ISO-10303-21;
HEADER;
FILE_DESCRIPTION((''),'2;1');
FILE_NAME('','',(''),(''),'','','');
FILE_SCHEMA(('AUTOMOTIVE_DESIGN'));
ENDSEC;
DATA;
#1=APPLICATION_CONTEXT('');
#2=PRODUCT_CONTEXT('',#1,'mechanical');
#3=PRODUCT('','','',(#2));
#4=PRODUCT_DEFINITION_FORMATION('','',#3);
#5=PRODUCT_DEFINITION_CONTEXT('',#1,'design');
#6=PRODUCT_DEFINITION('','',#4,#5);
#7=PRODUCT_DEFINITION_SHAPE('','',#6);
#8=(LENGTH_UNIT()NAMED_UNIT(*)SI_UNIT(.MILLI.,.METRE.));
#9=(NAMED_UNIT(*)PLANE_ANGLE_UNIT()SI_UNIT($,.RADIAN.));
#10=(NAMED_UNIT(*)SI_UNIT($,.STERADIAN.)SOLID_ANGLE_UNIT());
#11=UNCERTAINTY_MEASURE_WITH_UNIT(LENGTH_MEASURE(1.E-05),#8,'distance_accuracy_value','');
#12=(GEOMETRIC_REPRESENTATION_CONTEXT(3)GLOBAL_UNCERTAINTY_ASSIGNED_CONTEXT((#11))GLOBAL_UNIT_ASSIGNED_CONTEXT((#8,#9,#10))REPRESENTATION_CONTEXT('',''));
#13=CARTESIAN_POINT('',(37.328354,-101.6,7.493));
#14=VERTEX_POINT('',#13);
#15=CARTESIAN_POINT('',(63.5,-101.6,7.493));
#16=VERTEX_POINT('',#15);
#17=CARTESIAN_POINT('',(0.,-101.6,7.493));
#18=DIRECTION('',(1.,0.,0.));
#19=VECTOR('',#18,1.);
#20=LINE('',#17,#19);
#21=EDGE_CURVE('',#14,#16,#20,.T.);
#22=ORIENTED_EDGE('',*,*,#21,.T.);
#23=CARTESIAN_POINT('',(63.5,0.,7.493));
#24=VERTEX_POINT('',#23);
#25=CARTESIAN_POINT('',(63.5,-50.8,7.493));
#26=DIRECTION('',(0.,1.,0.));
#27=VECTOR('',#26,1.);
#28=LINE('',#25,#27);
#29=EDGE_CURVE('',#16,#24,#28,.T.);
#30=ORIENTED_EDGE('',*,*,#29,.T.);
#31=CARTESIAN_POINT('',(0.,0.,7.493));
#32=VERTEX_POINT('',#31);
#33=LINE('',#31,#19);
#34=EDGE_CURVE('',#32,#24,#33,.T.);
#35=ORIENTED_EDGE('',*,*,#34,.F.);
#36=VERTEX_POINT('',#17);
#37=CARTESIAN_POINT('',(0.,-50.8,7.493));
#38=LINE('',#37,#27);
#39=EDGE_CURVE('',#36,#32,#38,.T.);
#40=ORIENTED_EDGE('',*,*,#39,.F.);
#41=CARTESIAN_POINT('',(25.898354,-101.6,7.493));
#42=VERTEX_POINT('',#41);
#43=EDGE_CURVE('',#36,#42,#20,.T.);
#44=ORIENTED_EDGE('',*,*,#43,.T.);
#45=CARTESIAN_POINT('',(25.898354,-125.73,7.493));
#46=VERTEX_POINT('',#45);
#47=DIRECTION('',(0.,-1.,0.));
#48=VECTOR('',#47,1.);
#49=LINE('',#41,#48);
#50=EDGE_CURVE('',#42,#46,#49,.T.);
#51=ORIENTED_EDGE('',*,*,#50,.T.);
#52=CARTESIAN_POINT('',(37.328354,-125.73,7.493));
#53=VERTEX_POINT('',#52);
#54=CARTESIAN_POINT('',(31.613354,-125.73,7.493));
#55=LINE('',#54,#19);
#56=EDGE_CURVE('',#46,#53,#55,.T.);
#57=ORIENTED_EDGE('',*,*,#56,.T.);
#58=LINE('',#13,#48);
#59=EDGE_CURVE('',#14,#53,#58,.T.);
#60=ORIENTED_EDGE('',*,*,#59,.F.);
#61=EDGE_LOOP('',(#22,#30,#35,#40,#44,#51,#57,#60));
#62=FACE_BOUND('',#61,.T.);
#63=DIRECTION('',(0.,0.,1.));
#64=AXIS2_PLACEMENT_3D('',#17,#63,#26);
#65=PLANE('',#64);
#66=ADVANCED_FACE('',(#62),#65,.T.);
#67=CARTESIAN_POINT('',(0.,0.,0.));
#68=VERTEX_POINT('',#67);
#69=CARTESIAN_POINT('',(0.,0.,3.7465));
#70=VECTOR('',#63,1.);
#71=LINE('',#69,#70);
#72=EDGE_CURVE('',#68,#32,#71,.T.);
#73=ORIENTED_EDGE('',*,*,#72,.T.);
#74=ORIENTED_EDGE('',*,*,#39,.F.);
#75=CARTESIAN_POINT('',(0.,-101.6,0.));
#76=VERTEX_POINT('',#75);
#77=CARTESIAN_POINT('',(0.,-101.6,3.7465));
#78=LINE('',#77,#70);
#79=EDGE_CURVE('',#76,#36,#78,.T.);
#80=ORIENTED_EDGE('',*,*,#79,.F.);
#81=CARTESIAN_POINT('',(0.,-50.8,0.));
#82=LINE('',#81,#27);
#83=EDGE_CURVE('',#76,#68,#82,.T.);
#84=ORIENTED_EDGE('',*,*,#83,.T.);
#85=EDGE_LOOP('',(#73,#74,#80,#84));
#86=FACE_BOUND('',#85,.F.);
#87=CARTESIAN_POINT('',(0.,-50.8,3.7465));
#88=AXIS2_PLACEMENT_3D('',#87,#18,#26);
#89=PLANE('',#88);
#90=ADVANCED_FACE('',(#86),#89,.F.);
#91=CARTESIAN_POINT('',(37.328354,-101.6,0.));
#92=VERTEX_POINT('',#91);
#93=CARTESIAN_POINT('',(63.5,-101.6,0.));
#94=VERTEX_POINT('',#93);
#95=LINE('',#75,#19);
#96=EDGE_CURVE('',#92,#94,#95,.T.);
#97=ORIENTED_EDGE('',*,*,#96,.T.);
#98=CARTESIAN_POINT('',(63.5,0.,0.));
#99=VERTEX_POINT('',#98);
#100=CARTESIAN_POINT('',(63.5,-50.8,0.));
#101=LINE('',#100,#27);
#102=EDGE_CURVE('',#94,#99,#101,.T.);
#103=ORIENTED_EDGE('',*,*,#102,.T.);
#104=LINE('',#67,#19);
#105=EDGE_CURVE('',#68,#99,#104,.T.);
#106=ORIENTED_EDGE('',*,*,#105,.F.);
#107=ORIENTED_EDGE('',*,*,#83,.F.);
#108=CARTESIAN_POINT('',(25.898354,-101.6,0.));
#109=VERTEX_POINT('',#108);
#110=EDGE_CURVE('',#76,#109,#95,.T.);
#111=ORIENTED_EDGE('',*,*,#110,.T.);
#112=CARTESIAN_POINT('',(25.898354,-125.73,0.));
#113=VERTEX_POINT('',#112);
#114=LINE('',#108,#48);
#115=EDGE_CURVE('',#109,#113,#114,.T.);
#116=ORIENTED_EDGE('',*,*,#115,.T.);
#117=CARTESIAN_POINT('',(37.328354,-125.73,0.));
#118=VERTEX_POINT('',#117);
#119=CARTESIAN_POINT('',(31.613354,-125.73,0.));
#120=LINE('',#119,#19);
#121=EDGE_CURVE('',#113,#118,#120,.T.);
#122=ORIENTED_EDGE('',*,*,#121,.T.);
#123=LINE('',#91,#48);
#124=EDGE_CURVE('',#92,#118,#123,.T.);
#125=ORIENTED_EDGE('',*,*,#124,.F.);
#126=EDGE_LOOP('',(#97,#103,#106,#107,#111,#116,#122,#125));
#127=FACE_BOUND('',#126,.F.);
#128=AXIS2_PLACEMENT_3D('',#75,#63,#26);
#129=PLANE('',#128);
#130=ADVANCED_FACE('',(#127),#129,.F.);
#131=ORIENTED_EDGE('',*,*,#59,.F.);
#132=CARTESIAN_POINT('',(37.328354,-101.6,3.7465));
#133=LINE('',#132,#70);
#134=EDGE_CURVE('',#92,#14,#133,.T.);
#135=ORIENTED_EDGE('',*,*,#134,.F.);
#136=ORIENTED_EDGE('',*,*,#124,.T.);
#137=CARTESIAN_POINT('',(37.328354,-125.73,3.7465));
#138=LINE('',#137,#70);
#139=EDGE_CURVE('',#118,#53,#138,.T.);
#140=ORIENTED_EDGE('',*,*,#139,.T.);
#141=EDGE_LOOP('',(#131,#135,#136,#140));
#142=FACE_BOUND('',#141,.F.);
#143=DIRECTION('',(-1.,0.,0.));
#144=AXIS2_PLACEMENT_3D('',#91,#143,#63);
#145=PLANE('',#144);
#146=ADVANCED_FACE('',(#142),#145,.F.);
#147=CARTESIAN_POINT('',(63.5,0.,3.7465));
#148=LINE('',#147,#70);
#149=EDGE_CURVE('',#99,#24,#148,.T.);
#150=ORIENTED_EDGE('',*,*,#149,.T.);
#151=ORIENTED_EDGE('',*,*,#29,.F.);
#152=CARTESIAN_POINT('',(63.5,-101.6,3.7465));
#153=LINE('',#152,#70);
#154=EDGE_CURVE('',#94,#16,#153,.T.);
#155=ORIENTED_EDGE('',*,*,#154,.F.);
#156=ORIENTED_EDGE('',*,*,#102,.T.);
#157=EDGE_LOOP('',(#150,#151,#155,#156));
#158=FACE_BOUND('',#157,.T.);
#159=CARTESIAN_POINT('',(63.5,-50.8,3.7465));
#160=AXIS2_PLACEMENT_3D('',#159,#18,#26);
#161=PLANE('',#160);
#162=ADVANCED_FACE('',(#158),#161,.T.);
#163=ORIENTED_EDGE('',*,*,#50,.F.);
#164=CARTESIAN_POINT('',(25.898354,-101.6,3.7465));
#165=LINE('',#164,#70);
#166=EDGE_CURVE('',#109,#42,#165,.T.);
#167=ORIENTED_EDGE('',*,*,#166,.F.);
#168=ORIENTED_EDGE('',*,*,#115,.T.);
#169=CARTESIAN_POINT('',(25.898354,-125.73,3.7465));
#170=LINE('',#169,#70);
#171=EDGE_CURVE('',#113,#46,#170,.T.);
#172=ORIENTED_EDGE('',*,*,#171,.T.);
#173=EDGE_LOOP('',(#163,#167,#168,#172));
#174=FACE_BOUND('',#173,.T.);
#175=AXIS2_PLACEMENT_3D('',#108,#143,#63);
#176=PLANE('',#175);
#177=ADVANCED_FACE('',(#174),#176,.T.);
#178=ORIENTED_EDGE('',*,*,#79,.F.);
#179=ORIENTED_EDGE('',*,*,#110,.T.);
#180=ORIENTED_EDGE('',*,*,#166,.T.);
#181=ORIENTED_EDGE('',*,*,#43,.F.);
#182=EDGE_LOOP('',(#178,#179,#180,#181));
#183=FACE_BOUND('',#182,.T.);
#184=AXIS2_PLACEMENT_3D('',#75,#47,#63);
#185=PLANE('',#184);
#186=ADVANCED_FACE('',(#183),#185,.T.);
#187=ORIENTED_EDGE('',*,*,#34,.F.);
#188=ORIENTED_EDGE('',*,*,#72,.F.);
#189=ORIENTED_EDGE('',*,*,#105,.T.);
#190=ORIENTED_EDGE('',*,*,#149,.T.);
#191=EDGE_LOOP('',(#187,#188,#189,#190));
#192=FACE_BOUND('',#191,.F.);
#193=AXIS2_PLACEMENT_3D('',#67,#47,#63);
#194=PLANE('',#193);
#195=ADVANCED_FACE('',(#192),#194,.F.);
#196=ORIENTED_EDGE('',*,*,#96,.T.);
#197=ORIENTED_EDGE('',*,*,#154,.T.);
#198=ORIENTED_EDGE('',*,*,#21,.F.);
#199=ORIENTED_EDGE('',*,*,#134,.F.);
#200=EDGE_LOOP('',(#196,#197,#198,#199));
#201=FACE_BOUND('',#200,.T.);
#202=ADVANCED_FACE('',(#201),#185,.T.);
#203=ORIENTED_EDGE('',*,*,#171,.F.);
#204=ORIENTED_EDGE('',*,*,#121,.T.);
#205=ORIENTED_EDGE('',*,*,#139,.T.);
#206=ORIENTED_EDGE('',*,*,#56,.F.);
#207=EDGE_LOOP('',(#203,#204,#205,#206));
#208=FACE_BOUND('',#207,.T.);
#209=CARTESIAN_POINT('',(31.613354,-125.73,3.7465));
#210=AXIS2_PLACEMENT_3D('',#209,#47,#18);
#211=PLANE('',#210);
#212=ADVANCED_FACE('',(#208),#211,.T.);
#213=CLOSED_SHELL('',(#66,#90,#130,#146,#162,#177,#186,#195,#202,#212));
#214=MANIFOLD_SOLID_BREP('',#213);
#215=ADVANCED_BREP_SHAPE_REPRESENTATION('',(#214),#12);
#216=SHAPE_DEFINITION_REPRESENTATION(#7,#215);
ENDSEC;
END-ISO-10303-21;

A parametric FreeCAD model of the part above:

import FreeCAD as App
import Part
import Sketcher
Q = App.Units.Quantity


def add_polygon(sketch, points):
    """Adds a closed chain of lines whose ends are joined by coincident constraints."""
    first, n = sketch.GeometryCount, len(points)
    for a, b in zip(points, points[1:] + points[:1]):
        sketch.addGeometry(Part.LineSegment(App.Vector(*a, 0), App.Vector(*b, 0)), False)
    for i in range(n):
        sketch.addConstraint(Sketcher.Constraint("Coincident", first + i, 2, first + (i + 1) % n, 1))

doc = App.newDocument("Part")
params = doc.addObject("Spreadsheet::Sheet", "Params")
for row, (alias, value) in enumerate([
    ("sketch1_width", "4 in"),
    ("sketch1_height", "0.295 in"),
    ("pad1_length", "2.5 in"),
    ("sketch2_width", "0.45 in"),
    ("sketch2_height", "0.295 in"),
    ("pad2_length", "0.95 in"),
], start=1):
    params.set(f"A{row}", alias)
    params.set(f"B{row}", "=" + value)
    params.setAlias(f"B{row}", alias)

body = doc.addObject("PartDesign::Body", "Body")

# Sketch on YZ plane
sketch1 = body.newObject("Sketcher::SketchObject", "Sketch")
sketch1.AttachmentSupport = (doc.getObject("YZ_Plane"), [""])
sketch1.MapMode = "FlatFace"
add_polygon(sketch1, [(-101.6, 7.493), (-101.6, 0), (0, 0), (0, 7.493)])  # lines 0-3
sketch1.addConstraint(Sketcher.Constraint("Vertical", 0))
sketch1.addConstraint(Sketcher.Constraint("Horizontal", 1))
sketch1.addConstraint(Sketcher.Constraint("Vertical", 2))
sketch1.addConstraint(Sketcher.Constraint("Horizontal", 3))
sketch1.addConstraint(Sketcher.Constraint("Coincident", 1, 2, -1, 1))
sketch1.addConstraint(Sketcher.Constraint("DistanceX", 1, 1, 1, 2, Q("4 in")))
sketch1.addConstraint(Sketcher.Constraint("DistanceY", 0, 2, 0, 1, Q("0.295 in")))
sketch1.setExpression("Constraints[9]", "Params.sketch1_width")
sketch1.setExpression("Constraints[10]", "Params.sketch1_height")
pad1 = body.newObject("PartDesign::Pad", "Pad")
pad1.Profile = sketch1
pad1.setExpression("Length", "Params.pad1_length")

# Sketch on XZ plane
sketch2 = body.newObject("Sketcher::SketchObject", "Sketch001")
sketch2.AttachmentSupport = (doc.getObject("XZ_Plane"), [""])
sketch2.MapMode = "FlatFace"
sketch2.AttachmentOffset = App.Placement(App.Vector(0, 0, 4 * 25.4), App.Rotation())
add_polygon(sketch2, [(25.898354, 7.493), (25.898354, 0), (37.328354, 0), (37.328354, 7.493)])  # lines 0-3
sketch2.addConstraint(Sketcher.Constraint("Vertical", 0))
sketch2.addConstraint(Sketcher.Constraint("Horizontal", 1))
sketch2.addConstraint(Sketcher.Constraint("Vertical", 2))
sketch2.addConstraint(Sketcher.Constraint("Horizontal", 3))
sketch2.addConstraint(Sketcher.Constraint("PointOnObject", 0, 2, -1))
sketch2.addConstraint(Sketcher.Constraint("DistanceX", 1, 1, 1, 2, Q("0.45 in")))
sketch2.addConstraint(Sketcher.Constraint("DistanceY", 0, 2, 0, 1, Q("0.295 in")))
sketch2.addConstraint(Sketcher.Constraint("DistanceX", -1, 1, 0, 2, Q("25.898354 mm")))
sketch2.setExpression("Constraints[9]", "Params.sketch2_width")
sketch2.setExpression("Constraints[10]", "Params.sketch2_height")
pad2 = body.newObject("PartDesign::Pad", "Pad001")
pad2.Profile = sketch2
pad2.setExpression("Length", "Params.pad2_length")

doc.recompute()
